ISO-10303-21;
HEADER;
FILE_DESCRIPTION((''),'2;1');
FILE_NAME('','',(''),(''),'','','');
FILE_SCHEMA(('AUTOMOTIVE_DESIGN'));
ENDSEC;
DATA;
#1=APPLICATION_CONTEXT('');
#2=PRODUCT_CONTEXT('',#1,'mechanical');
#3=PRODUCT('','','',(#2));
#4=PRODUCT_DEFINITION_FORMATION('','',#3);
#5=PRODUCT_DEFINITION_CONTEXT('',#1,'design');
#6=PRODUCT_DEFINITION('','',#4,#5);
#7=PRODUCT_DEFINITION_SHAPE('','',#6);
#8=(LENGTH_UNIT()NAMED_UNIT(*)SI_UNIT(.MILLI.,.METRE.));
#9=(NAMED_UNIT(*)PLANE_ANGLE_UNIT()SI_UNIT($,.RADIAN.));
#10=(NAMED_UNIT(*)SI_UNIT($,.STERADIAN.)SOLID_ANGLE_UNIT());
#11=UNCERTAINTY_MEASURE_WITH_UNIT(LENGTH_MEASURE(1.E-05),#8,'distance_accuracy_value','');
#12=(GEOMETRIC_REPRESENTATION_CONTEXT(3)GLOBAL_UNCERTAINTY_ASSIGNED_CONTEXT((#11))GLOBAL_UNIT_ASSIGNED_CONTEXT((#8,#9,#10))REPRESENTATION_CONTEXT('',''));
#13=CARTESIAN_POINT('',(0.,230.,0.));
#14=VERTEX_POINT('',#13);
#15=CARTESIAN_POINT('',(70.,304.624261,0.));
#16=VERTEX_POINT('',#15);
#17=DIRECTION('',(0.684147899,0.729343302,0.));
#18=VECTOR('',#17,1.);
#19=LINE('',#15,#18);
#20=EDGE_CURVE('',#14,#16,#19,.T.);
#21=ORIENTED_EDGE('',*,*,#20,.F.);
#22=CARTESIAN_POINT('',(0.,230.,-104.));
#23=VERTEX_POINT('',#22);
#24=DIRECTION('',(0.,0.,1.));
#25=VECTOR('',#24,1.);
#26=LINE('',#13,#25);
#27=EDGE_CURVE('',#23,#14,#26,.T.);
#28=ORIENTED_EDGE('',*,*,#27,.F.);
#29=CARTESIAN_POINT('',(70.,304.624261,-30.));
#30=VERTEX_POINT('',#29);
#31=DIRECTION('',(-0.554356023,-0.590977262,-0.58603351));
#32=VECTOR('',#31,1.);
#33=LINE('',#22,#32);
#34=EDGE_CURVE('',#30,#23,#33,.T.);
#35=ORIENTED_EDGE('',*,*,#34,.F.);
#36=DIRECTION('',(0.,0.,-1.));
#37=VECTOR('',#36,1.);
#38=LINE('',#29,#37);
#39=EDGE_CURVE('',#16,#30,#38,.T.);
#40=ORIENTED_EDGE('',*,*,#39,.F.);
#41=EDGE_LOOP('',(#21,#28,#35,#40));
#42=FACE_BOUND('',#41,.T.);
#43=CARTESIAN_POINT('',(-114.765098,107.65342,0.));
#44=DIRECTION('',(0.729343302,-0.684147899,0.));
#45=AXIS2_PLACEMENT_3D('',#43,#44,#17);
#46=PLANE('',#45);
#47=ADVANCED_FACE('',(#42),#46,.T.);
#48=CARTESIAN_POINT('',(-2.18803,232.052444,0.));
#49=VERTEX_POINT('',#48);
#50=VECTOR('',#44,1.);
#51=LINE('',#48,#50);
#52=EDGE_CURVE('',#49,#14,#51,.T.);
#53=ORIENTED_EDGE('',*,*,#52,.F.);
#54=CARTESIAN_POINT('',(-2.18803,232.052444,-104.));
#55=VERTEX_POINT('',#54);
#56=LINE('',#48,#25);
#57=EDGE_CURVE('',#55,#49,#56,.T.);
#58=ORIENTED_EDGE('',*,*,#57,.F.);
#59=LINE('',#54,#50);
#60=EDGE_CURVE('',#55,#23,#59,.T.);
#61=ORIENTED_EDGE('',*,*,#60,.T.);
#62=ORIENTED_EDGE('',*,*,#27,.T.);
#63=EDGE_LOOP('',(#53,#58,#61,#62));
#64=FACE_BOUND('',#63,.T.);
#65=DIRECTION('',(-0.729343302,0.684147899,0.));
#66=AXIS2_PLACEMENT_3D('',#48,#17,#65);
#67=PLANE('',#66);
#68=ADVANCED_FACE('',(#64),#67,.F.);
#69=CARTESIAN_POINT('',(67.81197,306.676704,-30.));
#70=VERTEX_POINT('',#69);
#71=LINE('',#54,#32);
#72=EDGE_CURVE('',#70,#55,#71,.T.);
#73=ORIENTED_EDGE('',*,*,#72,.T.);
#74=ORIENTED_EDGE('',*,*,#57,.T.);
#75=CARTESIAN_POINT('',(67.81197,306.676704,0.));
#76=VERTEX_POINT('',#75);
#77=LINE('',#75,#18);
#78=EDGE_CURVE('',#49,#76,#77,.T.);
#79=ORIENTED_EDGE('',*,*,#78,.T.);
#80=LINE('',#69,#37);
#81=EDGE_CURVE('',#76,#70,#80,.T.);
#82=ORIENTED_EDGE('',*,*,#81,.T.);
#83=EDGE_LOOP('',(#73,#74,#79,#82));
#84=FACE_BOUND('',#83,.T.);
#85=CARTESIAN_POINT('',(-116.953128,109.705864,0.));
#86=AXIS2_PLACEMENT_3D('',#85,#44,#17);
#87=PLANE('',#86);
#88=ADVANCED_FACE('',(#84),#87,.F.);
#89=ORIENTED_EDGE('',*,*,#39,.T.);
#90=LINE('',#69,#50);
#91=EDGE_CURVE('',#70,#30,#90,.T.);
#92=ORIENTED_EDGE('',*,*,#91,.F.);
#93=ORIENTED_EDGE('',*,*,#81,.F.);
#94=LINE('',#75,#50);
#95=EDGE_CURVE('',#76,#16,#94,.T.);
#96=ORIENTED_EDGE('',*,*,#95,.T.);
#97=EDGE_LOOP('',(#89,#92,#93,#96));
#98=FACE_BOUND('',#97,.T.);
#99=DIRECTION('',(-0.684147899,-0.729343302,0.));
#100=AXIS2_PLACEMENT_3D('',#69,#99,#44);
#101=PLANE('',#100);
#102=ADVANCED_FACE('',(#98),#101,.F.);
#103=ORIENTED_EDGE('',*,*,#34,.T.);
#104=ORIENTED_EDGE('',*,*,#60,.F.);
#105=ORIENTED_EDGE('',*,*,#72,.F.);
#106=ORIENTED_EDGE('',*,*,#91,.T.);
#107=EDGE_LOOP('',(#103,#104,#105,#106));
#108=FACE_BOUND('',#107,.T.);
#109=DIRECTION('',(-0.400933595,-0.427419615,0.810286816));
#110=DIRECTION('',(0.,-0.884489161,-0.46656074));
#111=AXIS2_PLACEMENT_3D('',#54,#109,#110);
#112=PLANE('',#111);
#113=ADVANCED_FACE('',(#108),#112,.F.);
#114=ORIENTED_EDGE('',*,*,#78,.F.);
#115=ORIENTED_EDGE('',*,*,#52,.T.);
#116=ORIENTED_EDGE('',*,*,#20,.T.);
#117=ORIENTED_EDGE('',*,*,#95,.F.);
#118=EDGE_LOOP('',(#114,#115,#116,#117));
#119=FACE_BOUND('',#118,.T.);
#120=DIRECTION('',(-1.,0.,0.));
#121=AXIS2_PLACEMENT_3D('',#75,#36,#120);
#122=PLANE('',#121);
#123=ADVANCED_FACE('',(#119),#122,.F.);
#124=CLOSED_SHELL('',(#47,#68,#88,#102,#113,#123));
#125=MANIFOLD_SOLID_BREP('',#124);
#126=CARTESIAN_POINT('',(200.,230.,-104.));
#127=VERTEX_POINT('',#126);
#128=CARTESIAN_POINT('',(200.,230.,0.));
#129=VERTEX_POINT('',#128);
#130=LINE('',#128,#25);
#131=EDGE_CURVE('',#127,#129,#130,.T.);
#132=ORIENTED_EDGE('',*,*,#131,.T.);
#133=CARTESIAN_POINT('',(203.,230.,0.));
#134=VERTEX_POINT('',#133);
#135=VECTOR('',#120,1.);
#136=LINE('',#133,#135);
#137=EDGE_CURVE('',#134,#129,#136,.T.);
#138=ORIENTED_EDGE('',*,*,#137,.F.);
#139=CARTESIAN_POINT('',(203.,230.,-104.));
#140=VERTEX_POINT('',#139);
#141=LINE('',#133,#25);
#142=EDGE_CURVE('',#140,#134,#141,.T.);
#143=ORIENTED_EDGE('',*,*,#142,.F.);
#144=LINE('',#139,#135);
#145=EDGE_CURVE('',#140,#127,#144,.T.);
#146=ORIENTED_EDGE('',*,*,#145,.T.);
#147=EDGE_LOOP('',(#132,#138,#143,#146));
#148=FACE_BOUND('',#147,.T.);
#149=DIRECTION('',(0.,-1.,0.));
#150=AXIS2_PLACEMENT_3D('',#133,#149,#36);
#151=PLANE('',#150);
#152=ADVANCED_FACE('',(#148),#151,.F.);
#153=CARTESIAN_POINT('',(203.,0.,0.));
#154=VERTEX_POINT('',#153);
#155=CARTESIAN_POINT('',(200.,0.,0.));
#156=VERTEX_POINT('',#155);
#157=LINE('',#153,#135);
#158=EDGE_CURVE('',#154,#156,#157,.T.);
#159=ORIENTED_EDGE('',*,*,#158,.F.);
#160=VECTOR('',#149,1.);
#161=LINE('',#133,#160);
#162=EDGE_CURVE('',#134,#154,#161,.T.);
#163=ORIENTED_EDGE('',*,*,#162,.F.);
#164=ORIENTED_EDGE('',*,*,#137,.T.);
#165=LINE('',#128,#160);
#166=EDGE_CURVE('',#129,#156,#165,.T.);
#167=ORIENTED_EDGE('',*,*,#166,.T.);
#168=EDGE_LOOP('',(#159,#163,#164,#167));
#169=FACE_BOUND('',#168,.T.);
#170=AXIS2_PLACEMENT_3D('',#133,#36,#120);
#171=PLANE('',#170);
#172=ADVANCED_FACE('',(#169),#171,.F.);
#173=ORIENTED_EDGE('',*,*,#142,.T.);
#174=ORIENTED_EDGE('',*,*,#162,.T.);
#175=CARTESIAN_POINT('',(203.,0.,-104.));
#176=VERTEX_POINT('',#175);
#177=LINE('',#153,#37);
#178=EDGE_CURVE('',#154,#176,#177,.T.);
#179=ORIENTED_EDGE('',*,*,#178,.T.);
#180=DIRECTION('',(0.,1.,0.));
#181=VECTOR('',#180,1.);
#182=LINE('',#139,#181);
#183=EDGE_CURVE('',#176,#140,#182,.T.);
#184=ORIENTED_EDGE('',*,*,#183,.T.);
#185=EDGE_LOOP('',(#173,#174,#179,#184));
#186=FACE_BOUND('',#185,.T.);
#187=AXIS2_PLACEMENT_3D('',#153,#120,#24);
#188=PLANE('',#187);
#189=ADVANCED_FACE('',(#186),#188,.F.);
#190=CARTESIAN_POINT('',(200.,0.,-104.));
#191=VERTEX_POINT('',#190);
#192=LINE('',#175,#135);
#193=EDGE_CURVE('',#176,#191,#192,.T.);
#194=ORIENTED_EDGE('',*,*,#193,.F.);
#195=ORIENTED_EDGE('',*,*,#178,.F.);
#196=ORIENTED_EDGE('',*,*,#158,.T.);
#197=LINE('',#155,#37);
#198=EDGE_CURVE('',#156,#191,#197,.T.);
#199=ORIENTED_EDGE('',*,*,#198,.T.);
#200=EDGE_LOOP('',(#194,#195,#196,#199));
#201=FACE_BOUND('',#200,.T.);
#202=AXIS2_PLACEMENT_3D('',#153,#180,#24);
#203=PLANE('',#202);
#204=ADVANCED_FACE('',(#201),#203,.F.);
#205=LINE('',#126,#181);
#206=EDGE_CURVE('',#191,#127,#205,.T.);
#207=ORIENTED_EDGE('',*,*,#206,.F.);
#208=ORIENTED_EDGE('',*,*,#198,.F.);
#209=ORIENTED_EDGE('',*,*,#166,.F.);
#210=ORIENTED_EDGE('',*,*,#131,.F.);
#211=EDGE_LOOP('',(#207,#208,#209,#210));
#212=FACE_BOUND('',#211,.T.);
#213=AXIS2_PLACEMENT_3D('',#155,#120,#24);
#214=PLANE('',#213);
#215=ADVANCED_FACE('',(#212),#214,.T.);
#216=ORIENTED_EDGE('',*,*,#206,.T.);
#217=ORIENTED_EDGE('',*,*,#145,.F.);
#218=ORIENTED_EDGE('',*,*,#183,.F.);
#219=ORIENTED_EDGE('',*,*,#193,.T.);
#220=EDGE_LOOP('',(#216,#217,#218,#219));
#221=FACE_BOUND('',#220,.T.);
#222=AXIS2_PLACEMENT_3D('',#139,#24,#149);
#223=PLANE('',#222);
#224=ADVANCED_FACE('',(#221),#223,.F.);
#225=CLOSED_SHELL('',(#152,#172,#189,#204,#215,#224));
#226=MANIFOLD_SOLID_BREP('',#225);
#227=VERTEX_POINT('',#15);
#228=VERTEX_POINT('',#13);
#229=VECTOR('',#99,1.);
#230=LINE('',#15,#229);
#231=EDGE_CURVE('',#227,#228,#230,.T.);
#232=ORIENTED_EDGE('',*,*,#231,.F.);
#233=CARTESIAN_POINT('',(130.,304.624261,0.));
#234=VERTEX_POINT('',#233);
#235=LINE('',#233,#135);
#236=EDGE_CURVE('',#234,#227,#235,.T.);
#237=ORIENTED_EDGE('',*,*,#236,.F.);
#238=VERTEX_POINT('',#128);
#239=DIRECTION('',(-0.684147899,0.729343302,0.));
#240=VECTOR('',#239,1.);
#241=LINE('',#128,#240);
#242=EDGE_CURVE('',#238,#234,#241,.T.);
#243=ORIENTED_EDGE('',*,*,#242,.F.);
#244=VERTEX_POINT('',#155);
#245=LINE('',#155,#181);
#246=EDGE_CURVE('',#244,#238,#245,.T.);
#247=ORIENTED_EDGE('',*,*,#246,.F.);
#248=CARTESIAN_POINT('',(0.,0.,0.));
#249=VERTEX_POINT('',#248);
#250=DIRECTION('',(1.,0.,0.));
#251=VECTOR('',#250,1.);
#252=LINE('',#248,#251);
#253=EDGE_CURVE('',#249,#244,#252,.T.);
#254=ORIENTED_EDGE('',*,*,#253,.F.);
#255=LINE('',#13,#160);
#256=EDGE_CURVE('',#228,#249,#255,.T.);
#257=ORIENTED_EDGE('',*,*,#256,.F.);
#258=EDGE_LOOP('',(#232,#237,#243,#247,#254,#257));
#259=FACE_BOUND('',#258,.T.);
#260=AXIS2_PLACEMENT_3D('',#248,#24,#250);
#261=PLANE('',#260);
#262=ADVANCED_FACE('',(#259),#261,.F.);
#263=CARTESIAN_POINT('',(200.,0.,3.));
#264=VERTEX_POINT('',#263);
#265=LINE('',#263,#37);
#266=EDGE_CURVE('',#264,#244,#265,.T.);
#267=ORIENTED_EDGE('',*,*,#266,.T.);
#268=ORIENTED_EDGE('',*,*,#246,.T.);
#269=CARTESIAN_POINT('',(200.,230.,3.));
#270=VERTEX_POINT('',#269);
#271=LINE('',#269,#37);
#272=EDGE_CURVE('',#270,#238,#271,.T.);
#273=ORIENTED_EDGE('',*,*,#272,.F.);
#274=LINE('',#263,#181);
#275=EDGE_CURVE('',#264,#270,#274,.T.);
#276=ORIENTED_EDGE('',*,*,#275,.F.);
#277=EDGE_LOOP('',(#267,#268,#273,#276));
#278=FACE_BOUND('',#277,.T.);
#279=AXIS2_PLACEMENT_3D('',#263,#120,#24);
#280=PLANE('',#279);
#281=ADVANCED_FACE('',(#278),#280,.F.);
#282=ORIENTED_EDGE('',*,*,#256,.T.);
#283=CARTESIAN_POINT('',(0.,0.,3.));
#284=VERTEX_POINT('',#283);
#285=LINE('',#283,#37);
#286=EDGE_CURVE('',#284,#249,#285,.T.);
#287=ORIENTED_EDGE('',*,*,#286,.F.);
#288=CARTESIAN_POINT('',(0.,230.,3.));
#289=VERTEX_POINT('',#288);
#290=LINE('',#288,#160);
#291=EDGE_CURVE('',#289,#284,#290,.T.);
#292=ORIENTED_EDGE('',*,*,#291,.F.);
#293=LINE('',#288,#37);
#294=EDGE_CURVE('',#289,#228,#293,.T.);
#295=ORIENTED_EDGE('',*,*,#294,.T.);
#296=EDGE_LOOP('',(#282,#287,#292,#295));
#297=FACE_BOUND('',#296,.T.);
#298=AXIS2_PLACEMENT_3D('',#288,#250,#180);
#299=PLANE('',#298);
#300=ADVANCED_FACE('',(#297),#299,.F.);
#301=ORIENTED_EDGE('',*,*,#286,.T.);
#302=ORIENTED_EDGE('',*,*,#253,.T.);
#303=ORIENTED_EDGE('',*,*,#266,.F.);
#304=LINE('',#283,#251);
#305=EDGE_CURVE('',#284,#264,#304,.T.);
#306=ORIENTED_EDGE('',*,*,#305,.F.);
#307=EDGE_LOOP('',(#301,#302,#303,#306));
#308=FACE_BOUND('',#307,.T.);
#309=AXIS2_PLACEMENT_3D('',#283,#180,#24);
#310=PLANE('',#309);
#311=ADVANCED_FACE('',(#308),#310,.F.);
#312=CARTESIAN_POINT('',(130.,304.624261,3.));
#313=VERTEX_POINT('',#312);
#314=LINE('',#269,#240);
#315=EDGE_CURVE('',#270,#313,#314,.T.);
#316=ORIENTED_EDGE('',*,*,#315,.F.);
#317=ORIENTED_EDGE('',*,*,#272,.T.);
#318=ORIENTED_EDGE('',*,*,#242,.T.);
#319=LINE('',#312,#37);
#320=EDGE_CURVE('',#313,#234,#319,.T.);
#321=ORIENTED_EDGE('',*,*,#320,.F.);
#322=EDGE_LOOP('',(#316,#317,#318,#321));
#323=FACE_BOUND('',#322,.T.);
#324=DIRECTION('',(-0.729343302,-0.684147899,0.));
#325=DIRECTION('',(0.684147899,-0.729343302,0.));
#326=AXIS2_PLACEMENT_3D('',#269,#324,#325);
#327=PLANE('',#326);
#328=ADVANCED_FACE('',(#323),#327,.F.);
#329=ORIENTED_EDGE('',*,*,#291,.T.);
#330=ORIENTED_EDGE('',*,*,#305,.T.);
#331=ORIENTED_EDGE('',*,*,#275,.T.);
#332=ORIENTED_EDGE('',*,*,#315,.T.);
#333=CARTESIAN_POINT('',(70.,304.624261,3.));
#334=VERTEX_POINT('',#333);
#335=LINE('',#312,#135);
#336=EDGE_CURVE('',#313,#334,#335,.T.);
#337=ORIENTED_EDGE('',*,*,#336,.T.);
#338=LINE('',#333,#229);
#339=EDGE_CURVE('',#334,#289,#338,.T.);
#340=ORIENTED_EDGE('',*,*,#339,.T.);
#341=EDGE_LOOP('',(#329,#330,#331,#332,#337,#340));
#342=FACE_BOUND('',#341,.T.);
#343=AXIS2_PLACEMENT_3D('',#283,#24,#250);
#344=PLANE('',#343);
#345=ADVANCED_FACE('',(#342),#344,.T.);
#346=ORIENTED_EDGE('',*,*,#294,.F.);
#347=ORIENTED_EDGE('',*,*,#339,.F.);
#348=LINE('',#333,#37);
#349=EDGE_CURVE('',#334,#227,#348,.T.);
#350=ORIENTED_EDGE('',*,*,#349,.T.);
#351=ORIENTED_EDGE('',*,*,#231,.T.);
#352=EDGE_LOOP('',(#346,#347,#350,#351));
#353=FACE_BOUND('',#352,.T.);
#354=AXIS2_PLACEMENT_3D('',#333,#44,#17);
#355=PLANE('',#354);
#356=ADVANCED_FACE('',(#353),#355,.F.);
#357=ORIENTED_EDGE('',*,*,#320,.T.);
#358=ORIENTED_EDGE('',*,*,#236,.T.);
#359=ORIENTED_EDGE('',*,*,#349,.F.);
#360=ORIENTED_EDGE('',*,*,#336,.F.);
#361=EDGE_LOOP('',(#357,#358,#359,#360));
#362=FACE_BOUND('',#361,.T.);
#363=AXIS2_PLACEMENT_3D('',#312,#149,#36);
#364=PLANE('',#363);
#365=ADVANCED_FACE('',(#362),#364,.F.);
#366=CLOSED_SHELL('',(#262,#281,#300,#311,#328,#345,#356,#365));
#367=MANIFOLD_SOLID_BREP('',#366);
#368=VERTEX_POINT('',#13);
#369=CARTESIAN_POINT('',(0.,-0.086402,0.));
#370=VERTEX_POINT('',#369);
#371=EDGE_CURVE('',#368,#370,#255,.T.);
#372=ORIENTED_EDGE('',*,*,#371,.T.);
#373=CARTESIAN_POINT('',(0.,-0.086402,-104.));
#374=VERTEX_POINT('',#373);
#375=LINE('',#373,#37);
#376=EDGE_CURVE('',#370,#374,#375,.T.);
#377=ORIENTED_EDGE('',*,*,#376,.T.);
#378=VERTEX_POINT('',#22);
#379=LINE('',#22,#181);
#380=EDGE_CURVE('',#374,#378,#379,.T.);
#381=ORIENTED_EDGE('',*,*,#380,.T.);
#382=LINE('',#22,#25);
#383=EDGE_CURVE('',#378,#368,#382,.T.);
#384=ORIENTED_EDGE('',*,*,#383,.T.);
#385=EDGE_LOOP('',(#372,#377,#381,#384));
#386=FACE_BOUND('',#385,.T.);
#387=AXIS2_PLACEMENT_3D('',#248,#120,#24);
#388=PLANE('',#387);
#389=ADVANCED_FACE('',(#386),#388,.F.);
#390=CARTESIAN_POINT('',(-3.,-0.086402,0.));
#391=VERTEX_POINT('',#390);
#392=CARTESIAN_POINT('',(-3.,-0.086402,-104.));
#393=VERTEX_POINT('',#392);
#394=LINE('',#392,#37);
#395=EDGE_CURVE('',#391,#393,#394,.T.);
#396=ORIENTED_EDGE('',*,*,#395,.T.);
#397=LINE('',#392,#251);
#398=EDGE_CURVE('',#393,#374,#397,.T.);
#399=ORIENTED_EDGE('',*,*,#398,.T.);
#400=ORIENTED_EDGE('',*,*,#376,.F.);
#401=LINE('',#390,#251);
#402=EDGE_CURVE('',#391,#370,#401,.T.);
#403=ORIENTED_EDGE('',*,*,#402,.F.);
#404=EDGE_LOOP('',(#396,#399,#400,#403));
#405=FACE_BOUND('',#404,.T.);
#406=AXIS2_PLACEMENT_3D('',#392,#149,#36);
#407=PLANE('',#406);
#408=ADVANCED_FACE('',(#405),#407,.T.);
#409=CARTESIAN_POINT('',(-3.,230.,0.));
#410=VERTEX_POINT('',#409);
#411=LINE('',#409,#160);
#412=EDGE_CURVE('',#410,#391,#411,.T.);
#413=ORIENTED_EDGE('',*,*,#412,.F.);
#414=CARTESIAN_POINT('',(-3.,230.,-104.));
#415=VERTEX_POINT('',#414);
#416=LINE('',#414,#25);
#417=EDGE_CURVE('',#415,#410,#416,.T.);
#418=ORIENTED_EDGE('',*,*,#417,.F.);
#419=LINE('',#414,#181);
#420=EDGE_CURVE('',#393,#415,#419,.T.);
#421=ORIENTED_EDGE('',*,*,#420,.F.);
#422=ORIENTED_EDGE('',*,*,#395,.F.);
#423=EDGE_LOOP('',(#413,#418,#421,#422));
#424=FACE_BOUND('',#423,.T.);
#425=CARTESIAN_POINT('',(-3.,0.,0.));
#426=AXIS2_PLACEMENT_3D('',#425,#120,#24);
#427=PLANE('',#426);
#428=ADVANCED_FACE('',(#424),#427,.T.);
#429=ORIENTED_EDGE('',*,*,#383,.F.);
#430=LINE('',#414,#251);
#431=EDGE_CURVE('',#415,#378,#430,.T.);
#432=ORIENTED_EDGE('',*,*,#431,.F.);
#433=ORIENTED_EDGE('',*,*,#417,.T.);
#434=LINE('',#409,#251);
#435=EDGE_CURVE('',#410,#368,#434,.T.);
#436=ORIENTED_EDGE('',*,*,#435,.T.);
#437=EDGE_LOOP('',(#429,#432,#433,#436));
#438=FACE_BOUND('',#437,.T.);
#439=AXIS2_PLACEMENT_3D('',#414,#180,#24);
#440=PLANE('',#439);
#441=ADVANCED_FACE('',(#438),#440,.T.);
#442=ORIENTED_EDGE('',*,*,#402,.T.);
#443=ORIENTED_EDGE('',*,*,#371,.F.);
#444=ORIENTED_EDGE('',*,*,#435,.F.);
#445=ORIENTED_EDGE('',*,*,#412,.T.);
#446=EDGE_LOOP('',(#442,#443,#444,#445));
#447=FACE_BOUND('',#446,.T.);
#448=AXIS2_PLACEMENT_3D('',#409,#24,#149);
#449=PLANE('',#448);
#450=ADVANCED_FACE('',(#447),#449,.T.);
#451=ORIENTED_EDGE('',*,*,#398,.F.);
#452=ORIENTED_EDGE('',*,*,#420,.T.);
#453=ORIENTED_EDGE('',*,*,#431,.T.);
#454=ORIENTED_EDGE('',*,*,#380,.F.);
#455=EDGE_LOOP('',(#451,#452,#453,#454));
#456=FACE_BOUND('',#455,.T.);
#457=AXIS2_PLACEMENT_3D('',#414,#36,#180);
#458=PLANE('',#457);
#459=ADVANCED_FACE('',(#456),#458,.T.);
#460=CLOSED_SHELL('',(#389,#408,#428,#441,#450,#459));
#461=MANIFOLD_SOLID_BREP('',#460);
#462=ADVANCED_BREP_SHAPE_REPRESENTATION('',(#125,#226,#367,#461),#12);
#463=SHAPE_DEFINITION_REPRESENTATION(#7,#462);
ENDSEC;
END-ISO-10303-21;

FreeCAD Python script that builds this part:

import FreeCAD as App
import Part
import Sketcher

doc = App.newDocument("Part")
body = doc.addObject("PartDesign::Body", "Body")

sketch1 = doc.addObject("Sketcher::SketchObject", "Sketch")
body.addObject(sketch1)
sketch1.AttachmentSupport = (doc.XY_Plane, [""])
sketch1.MapMode = "FlatFace"
sketch1.addGeometry([
    Part.LineSegment(App.Vector(0, 0, 0), App.Vector(200, 0, 0)),
    Part.LineSegment(App.Vector(200, 0, 0), App.Vector(200, 230, 0)),
    Part.LineSegment(App.Vector(200, 230, 0), App.Vector(130, 304.624261, 0)),
    Part.LineSegment(App.Vector(130, 304.624261, 0), App.Vector(70, 304.624261, 0)),
    Part.LineSegment(App.Vector(70, 304.624261, 0), App.Vector(0, 230, 0)),
    Part.LineSegment(App.Vector(0, 230, 0), App.Vector(0, 0, 0)),
], False)
sketch1.addConstraint([
    Sketcher.Constraint("Coincident", 0, 2, 1, 1),
    Sketcher.Constraint("Coincident", 1, 2, 2, 1),
    Sketcher.Constraint("Coincident", 2, 2, 3, 1),
    Sketcher.Constraint("Coincident", 3, 2, 4, 1),
    Sketcher.Constraint("Coincident", 4, 2, 5, 1),
    Sketcher.Constraint("Coincident", 5, 2, 0, 1),
    Sketcher.Constraint("Horizontal", 0),
    Sketcher.Constraint("Vertical", 1),
    Sketcher.Constraint("Horizontal", 3),
    Sketcher.Constraint("Vertical", 5),
    Sketcher.Constraint("Coincident", 5, 2, -1, 1),
    Sketcher.Constraint("Horizontal", 1, 2, 4, 2),
    Sketcher.Constraint("Equal", 2, 4),
    Sketcher.Constraint("DistanceX", 0, 1, 0, 2, 200.0),
    Sketcher.Constraint("DistanceX", 3, 2, 3, 1, 60.0),
    Sketcher.Constraint("DistanceY", 1, 1, 1, 2, 230.0),
    Sketcher.Constraint("DistanceY", -1, 1, 2, 2, 304.624261),
])
pad1 = doc.addObject("PartDesign::Pad", "Pad")
body.addObject(pad1)
pad1.Profile = sketch1
pad1.Length = 3
body2 = doc.addObject("PartDesign::Body", "Body001")

sketch2 = doc.addObject("Sketcher::SketchObject", "Sketch001")
body2.addObject(sketch2)
sketch2.Placement = App.Placement(App.Vector(-114.765098, 107.65342, 0), App.Rotation(App.Vector(-0.684147899, -0.729343302, 0), App.Vector(0, 0, 1), App.Vector(-0.729343302, 0.684147899, 0), "ZXY"))
sketch2.addGeometry([
    Part.LineSegment(App.Vector(-167.748959, -104, 0), App.Vector(-167.748959, 0, 0)),
    Part.LineSegment(App.Vector(-167.748959, 0, 0), App.Vector(-270.066017, 0, 0)),
    Part.LineSegment(App.Vector(-270.066017, 0, 0), App.Vector(-270.066017, -30, 0)),
    Part.LineSegment(App.Vector(-270.066017, -30, 0), App.Vector(-167.748959, -104, 0)),
], False)
sketch2.addConstraint([
    Sketcher.Constraint("Coincident", 0, 2, 1, 1),
    Sketcher.Constraint("Coincident", 1, 2, 2, 1),
    Sketcher.Constraint("Coincident", 2, 2, 3, 1),
    Sketcher.Constraint("Coincident", 3, 2, 0, 1),
    Sketcher.Constraint("Vertical", 0),
    Sketcher.Constraint("Horizontal", 1),
    Sketcher.Constraint("Vertical", 2),
    Sketcher.Constraint("PointOnObject", 0, 2, -1),
    Sketcher.Constraint("DistanceY", 0, 1, 0, 2, 104.0),
    Sketcher.Constraint("DistanceY", 2, 2, 2, 1, 30.0),
    Sketcher.Constraint("DistanceX", 1, 2, 1, 1, 102.317058),
    Sketcher.Constraint("DistanceX", 0, 2, -1, 1, 167.748959),
])
pad2 = doc.addObject("PartDesign::Pad", "Pad001")
body2.addObject(pad2)
pad2.Profile = sketch2
pad2.Length = 3
body3 = doc.addObject("PartDesign::Body", "Body002")

sketch3 = doc.addObject("Sketcher::SketchObject", "Sketch002")
body3.addObject(sketch3)
sketch3.AttachmentSupport = (doc.getObject("YZ_Plane002"), [""])
sketch3.MapMode = "FlatFace"
sketch3.AttachmentOffset = App.Placement(App.Vector(0, 0, 200), App.Rotation())
sketch3.addGeometry([
    Part.LineSegment(App.Vector(230, 0, 0), App.Vector(0, 0, 0)),
    Part.LineSegment(App.Vector(0, 0, 0), App.Vector(0, -104, 0)),
    Part.LineSegment(App.Vector(0, -104, 0), App.Vector(230, -104, 0)),
    Part.LineSegment(App.Vector(230, -104, 0), App.Vector(230, 0, 0)),
], False)
sketch3.addConstraint([
    Sketcher.Constraint("Coincident", 0, 2, 1, 1),
    Sketcher.Constraint("Coincident", 1, 2, 2, 1),
    Sketcher.Constraint("Coincident", 2, 2, 3, 1),
    Sketcher.Constraint("Coincident", 3, 2, 0, 1),
    Sketcher.Constraint("Horizontal", 0),
    Sketcher.Constraint("Vertical", 1),
    Sketcher.Constraint("Horizontal", 2),
    Sketcher.Constraint("Vertical", 3),
    Sketcher.Constraint("Coincident", 0, 2, -1, 1),
    Sketcher.Constraint("DistanceX", 0, 2, 0, 1, 230.0),
    Sketcher.Constraint("DistanceY", 1, 2, 1, 1, 104.0),
])
pad3 = doc.addObject("PartDesign::Pad", "Pad002")
body3.addObject(pad3)
pad3.Profile = sketch3
pad3.Length = 3
body4 = doc.addObject("PartDesign::Body", "Body003")

sketch4 = doc.addObject("Sketcher::SketchObject", "Sketch003")
body4.addObject(sketch4)
sketch4.AttachmentSupport = (doc.getObject("YZ_Plane003"), [""])
sketch4.MapMode = "FlatFace"
sketch4.addGeometry([
    Part.LineSegment(App.Vector(230, 0, 0), App.Vector(-0.086402, 0, 0)),
    Part.LineSegment(App.Vector(-0.086402, 0, 0), App.Vector(-0.086402, -104, 0)),
    Part.LineSegment(App.Vector(-0.086402, -104, 0), App.Vector(230, -104, 0)),
    Part.LineSegment(App.Vector(230, -104, 0), App.Vector(230, 0, 0)),
], False)
sketch4.addConstraint([
    Sketcher.Constraint("Coincident", 0, 2, 1, 1),
    Sketcher.Constraint("Coincident", 1, 2, 2, 1),
    Sketcher.Constraint("Coincident", 2, 2, 3, 1),
    Sketcher.Constraint("Coincident", 3, 2, 0, 1),
    Sketcher.Constraint("Horizontal", 0),
    Sketcher.Constraint("Vertical", 1),
    Sketcher.Constraint("Horizontal", 2),
    Sketcher.Constraint("Vertical", 3),
    Sketcher.Constraint("PointOnObject", 0, 2, -1),
    Sketcher.Constraint("DistanceY", 1, 2, 1, 1, 104.0),
    Sketcher.Constraint("DistanceX", -1, 1, 2, 2, 230.0),
    Sketcher.Constraint("DistanceX", 0, 2, 0, 1, 230.086402),
])
pad4 = doc.addObject("PartDesign::Pad", "Pad003")
body4.addObject(pad4)
pad4.Profile = sketch4
pad4.Length = 3
pad4.Reversed = True

doc.recompute()
